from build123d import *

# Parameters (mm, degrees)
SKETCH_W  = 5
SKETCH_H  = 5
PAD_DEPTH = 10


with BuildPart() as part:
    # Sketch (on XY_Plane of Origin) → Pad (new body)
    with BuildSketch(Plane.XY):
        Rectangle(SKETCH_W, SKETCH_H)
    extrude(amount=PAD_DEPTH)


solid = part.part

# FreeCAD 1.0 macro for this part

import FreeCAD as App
import Part
import Sketcher
Q = App.Units.Quantity

doc = App.newDocument("Part")
body = doc.addObject("PartDesign::Body", "Body")

sketch1 = doc.addObject("Sketcher::SketchObject", "Sketch")
body.addObject(sketch1)
sketch1.AttachmentSupport = (doc.XY_Plane, [""])
sketch1.MapMode = "FlatFace"
sketch1.addGeometry([
    Part.LineSegment(App.Vector(-2, 2, 0), App.Vector(-2, -2, 0)),
    Part.LineSegment(App.Vector(-2, -2, 0), App.Vector(2, -2, 0)),
    Part.LineSegment(App.Vector(2, -2, 0), App.Vector(2, 2, 0)),
    Part.LineSegment(App.Vector(2, 2, 0), App.Vector(-2, 2, 0)),
], False)
sketch1.addConstraint([
    Sketcher.Constraint("Coincident", 0, 2, 1, 1),
    Sketcher.Constraint("Coincident", 1, 2, 2, 1),
    Sketcher.Constraint("Coincident", 2, 2, 3, 1),
    Sketcher.Constraint("Coincident", 3, 2, 0, 1),
    Sketcher.Constraint("Vertical", 0),
    Sketcher.Constraint("Horizontal", 1),
    Sketcher.Constraint("Vertical", 2),
    Sketcher.Constraint("Horizontal", 3),
    Sketcher.Constraint("Symmetric", 0, 2, 2, 2, -1, 1),
    Sketcher.Constraint("Equal", 3, 0),
    Sketcher.Constraint("DistanceX", 1, 1, 1, 2, Q("5 mm")),
])
pad1 = doc.addObject("PartDesign::Pad", "Pad")
body.addObject(pad1)
pad1.Profile = sketch1
pad1.Length = 10

doc.recompute()
